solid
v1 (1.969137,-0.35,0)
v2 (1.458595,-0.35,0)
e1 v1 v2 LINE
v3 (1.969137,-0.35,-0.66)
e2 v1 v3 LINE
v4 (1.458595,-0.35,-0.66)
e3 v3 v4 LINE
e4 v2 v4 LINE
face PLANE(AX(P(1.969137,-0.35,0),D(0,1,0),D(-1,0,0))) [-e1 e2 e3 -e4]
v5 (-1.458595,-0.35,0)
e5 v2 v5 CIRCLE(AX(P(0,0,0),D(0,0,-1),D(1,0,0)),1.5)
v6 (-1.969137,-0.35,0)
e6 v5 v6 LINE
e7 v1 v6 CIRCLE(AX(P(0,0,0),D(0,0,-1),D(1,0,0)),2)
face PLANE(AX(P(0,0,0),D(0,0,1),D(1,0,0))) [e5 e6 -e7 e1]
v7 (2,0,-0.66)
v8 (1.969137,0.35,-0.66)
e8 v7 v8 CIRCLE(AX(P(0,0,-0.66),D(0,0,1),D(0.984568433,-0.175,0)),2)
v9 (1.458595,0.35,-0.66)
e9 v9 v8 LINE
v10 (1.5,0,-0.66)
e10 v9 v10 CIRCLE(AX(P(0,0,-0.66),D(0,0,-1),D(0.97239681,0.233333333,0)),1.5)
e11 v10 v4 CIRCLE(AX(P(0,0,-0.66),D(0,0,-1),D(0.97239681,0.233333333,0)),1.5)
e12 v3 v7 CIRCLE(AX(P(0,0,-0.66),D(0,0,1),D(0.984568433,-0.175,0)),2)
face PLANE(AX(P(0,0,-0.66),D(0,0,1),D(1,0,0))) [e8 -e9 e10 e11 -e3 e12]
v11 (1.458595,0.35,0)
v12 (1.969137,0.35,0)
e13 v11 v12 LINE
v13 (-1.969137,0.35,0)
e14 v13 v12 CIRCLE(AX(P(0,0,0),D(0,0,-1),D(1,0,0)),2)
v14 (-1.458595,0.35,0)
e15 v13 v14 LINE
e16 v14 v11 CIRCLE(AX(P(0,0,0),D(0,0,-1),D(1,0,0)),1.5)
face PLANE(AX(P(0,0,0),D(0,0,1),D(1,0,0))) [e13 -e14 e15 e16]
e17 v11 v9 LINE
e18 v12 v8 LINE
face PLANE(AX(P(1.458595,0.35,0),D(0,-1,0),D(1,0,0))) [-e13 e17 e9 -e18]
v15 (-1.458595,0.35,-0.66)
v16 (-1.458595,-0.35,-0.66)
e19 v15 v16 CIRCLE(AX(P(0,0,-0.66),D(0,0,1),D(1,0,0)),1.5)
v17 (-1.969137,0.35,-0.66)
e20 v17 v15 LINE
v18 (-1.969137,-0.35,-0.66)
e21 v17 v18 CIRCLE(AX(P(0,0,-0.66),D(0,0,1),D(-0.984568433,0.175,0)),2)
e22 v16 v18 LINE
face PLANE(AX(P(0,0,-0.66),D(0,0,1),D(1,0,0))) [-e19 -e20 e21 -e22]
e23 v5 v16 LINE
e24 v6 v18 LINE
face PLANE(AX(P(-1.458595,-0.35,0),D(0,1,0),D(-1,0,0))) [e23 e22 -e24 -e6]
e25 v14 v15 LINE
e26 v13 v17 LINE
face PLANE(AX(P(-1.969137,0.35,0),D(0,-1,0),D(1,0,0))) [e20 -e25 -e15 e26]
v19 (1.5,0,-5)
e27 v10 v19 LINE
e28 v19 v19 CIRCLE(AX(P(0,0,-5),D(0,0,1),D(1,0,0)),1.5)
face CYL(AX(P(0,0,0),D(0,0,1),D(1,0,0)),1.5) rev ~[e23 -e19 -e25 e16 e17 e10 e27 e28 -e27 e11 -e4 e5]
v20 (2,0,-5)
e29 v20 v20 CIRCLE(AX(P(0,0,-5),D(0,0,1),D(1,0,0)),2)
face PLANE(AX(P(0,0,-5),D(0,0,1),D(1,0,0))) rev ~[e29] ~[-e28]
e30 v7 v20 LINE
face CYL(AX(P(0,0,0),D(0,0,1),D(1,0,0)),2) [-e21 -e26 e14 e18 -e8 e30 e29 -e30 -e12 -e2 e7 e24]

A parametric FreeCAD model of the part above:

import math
import FreeCAD as App
import Part
import Sketcher

doc = App.newDocument("Part")
body = doc.addObject("PartDesign::Body", "Body")

sketch1 = doc.addObject("Sketcher::SketchObject", "Sketch")
body.addObject(sketch1)
sketch1.AttachmentSupport = (doc.XY_Plane, [""])
sketch1.MapMode = "FlatFace"
sketch1.addGeometry(Part.Circle(App.Vector(0, 0, 0), App.Vector(0, 0, 1), 2), False)
sketch1.addGeometry(Part.Circle(App.Vector(0, 0, 0), App.Vector(0, 0, 1), 1.5), False)
sketch1.addConstraint(Sketcher.Constraint("Coincident", 0, 3, -1, 1))
sketch1.addConstraint(Sketcher.Constraint("Coincident", 1, 3, -1, 1))
sketch1.addConstraint(Sketcher.Constraint("Diameter", 0, 4.0))
sketch1.addConstraint(Sketcher.Constraint("Diameter", 1, 3.0))
pad1 = doc.addObject("PartDesign::Pad", "Pad")
body.addObject(pad1)
pad1.Profile = sketch1
pad1.Length = 5
pad1.Reversed = True

sketch2 = doc.addObject("Sketcher::SketchObject", "Sketch001")
body.addObject(sketch2)
sketch2.AttachmentSupport = (doc.XY_Plane, [""])
sketch2.MapMode = "FlatFace"
sketch2.addGeometry(Part.ArcOfCircle(Part.Circle(App.Vector(0, 0, 0), App.Vector(0, 0, 1), 2), math.radians(-10.078658), math.radians(10.078658)), False)
sketch2.addGeometry(Part.LineSegment(App.Vector(1.969137, 0.35, 0), App.Vector(1.458595, 0.35, 0)), False)
sketch2.addGeometry(Part.ArcOfCircle(Part.Circle(App.Vector(0, 0, 0), App.Vector(0, 0, 1), 1.5), math.radians(-13.493399), math.radians(13.493399)), False)
sketch2.addGeometry(Part.LineSegment(App.Vector(1.458595, -0.35, 0), App.Vector(1.969137, -0.35, 0)), False)
sketch2.addGeometry(Part.LineSegment(App.Vector(-1.458595, 0.35, 0), App.Vector(-1.969137, 0.35, 0)), False)
sketch2.addGeometry(Part.ArcOfCircle(Part.Circle(App.Vector(0, 0, 0), App.Vector(0, 0, 1), 2), math.radians(169.921342), math.radians(190.078658)), False)
sketch2.addGeometry(Part.LineSegment(App.Vector(-1.969137, -0.35, 0), App.Vector(-1.458595, -0.35, 0)), False)
sketch2.addGeometry(Part.ArcOfCircle(Part.Circle(App.Vector(0, 0, 0), App.Vector(0, 0, 1), 1.5), math.radians(166.506601), math.radians(193.493399)), False)
sketch2.addConstraint(Sketcher.Constraint("Coincident", 0, 2, 1, 1))
sketch2.addConstraint(Sketcher.Constraint("Coincident", 1, 2, 2, 2))
sketch2.addConstraint(Sketcher.Constraint("Coincident", 2, 1, 3, 1))
sketch2.addConstraint(Sketcher.Constraint("Coincident", 3, 2, 0, 1))
sketch2.addConstraint(Sketcher.Constraint("Coincident", 4, 2, 5, 1))
sketch2.addConstraint(Sketcher.Constraint("Coincident", 5, 2, 6, 1))
sketch2.addConstraint(Sketcher.Constraint("Coincident", 6, 2, 7, 2))
sketch2.addConstraint(Sketcher.Constraint("Coincident", 7, 1, 4, 1))
sketch2.addConstraint(Sketcher.Constraint("Horizontal", 1))
sketch2.addConstraint(Sketcher.Constraint("Horizontal", 3))
sketch2.addConstraint(Sketcher.Constraint("Horizontal", 4))
sketch2.addConstraint(Sketcher.Constraint("Horizontal", 6))
sketch2.addConstraint(Sketcher.Constraint("Coincident", 0, 3, -1, 1))
sketch2.addConstraint(Sketcher.Constraint("Coincident", 2, 3, -1, 1))
sketch2.addConstraint(Sketcher.Constraint("Coincident", 5, 3, -1, 1))
sketch2.addConstraint(Sketcher.Constraint("Coincident", 7, 3, -1, 1))
sketch2.addConstraint(Sketcher.Constraint("Equal", 0, 5))
sketch2.addConstraint(Sketcher.Constraint("Equal", 2, 7))
sketch2.addConstraint(Sketcher.Constraint("Horizontal", 1, 2, 4, 2))
sketch2.addConstraint(Sketcher.Constraint("Horizontal", 3, 2, 5, 2))
sketch2.addConstraint(Sketcher.Constraint("Vertical", 1, 2, 2, 1))
sketch2.addConstraint(Sketcher.Constraint("Radius", 0, 2.0))
sketch2.addConstraint(Sketcher.Constraint("Radius", 2, 1.5))
sketch2.addConstraint(Sketcher.Constraint("DistanceY", 2, 1, 1, 2, 0.7))
pocket1 = doc.addObject("PartDesign::Pocket", "Pocket")
body.addObject(pocket1)
pocket1.Profile = sketch2
pocket1.Length = 0.66

doc.recompute()
